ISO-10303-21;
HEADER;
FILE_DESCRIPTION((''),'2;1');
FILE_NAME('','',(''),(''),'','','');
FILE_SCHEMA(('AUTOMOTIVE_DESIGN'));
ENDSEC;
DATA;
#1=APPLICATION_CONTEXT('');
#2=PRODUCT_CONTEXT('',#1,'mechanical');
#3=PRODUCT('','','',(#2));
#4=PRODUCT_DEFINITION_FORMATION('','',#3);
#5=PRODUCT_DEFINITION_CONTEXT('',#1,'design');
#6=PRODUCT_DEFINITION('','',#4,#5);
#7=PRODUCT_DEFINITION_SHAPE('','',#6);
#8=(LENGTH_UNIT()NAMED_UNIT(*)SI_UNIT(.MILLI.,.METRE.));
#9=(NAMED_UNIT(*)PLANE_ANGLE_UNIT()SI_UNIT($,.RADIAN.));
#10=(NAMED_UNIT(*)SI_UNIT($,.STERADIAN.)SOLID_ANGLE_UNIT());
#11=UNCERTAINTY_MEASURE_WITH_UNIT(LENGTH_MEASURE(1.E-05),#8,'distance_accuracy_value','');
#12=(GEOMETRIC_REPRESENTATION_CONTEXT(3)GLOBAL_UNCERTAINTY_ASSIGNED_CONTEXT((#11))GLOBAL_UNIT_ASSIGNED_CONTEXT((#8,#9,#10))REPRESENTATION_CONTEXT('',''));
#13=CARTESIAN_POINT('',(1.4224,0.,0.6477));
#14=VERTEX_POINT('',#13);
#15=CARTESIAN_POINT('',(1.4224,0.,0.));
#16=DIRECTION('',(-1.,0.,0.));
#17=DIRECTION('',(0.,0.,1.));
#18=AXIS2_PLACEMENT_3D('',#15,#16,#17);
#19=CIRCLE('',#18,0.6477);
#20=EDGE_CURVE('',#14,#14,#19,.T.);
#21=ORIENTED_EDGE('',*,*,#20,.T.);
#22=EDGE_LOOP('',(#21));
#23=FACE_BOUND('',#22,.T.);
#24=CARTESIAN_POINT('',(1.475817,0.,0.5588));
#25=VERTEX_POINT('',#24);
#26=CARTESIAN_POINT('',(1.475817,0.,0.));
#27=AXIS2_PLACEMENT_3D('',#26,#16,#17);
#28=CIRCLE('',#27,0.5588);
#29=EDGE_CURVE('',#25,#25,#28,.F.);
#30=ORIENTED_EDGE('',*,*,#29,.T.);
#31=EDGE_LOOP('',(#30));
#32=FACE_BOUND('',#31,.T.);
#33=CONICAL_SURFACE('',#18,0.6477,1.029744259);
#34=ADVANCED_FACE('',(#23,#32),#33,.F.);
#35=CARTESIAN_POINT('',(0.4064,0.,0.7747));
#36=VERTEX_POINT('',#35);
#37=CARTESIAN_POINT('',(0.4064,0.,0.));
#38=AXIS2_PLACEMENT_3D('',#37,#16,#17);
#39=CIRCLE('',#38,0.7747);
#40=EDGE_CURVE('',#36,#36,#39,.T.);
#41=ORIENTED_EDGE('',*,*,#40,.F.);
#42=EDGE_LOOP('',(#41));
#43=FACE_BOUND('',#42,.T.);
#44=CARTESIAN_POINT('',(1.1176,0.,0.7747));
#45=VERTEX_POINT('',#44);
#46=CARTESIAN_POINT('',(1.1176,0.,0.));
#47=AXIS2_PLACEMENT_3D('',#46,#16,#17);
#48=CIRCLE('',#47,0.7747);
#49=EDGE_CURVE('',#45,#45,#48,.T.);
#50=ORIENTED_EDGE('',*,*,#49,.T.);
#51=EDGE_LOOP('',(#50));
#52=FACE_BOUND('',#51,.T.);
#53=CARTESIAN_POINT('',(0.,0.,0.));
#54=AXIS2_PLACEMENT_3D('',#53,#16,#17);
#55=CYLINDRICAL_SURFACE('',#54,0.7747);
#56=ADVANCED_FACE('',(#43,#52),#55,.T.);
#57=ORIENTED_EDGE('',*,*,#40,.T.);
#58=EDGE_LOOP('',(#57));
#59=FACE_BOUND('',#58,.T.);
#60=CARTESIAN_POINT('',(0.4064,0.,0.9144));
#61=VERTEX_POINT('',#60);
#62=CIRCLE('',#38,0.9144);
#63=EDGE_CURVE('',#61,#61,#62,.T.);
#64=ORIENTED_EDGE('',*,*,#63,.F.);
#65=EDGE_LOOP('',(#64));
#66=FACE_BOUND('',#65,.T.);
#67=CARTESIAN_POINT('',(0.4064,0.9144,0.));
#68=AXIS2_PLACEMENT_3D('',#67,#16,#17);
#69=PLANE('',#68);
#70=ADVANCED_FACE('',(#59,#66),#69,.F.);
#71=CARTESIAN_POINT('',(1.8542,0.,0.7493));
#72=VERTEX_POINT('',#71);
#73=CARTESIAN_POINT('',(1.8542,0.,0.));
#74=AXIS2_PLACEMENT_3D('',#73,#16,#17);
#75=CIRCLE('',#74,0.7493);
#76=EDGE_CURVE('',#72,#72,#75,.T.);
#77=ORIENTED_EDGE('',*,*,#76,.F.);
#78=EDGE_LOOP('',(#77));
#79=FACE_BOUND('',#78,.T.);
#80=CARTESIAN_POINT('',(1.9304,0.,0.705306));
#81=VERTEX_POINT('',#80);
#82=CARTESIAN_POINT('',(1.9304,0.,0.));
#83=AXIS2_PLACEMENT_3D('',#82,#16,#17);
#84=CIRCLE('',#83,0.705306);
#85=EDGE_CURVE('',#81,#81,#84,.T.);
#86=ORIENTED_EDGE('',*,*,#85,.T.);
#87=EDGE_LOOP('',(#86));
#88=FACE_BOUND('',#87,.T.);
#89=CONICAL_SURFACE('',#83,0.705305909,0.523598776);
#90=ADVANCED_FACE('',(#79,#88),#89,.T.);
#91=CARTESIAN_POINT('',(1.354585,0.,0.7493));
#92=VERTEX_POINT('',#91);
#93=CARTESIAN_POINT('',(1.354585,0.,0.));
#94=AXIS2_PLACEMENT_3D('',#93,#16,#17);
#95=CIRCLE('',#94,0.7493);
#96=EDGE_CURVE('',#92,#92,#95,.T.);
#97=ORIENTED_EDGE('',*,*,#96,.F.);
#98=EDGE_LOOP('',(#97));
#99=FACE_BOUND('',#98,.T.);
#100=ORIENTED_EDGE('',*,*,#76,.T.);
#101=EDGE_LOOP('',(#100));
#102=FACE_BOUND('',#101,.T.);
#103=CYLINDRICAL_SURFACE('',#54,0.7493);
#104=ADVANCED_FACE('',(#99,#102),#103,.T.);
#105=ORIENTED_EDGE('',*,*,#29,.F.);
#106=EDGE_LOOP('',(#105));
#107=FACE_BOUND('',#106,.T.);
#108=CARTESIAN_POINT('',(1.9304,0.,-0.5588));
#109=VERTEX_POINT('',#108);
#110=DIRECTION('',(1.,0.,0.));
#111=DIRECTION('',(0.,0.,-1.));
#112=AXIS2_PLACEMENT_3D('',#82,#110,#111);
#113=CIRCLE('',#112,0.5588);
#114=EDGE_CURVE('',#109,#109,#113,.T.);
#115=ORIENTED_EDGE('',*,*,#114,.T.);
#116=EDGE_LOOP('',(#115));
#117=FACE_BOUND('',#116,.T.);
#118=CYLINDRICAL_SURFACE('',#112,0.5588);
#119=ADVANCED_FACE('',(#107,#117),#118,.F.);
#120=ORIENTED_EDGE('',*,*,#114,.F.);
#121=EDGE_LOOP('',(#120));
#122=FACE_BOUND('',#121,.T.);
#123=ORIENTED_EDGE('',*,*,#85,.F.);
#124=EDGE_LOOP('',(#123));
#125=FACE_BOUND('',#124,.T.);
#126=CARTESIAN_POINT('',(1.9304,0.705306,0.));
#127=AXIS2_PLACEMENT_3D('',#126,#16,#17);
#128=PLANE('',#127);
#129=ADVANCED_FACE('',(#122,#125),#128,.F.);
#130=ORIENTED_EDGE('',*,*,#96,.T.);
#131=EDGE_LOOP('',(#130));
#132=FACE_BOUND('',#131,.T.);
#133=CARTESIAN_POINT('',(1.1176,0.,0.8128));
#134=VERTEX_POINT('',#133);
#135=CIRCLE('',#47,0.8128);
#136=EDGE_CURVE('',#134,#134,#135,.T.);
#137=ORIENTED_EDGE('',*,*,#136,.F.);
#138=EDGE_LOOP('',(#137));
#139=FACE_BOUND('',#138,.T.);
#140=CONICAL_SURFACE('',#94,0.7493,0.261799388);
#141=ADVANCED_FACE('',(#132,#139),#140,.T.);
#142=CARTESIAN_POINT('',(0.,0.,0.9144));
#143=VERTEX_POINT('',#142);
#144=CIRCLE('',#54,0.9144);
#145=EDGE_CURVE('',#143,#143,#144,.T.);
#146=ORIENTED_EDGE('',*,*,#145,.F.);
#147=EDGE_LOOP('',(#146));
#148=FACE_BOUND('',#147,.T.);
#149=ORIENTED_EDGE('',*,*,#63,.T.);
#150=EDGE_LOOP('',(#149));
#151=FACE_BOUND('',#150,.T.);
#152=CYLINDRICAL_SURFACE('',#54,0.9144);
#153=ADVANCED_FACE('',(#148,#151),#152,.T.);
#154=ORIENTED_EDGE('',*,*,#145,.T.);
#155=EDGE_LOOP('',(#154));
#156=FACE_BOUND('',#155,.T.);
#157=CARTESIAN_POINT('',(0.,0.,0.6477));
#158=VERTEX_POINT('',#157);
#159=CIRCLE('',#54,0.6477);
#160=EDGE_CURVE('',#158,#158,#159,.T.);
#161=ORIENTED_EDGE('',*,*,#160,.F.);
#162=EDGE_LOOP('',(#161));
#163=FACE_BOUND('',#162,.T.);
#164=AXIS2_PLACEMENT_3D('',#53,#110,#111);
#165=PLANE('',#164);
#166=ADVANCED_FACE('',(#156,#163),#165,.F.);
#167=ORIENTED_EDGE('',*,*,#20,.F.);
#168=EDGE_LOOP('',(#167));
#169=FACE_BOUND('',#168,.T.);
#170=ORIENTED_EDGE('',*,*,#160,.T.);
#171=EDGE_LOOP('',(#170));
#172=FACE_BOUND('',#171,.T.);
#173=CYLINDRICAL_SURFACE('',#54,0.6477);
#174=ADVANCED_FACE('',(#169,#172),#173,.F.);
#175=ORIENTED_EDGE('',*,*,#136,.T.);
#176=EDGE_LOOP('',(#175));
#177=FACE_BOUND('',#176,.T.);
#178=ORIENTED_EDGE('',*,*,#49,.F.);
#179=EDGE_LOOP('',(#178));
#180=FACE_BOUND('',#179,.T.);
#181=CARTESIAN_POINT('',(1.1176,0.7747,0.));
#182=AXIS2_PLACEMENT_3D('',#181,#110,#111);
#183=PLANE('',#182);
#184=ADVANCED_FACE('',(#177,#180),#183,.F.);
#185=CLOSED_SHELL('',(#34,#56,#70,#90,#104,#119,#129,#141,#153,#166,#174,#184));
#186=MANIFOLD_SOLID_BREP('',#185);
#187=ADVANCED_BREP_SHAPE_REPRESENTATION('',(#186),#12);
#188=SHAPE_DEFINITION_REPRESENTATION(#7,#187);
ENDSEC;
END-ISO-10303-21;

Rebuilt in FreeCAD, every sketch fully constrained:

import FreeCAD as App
import Part
import Sketcher
from FreeCAD import Vector
Q = App.Units.Quantity

doc = App.newDocument("Part")
body = doc.addObject("PartDesign::Body", "Body")

# Sketch on XY plane
sketch1 = body.newObject("Sketcher::SketchObject", "Sketch")
sketch1.AttachmentSupport = (doc.getObject("XY_Plane"), [""])
sketch1.MapMode = "FlatFace"
sketch1.addGeometry([
    Part.LineSegment(Vector(0, 0.914, 0), Vector(0, 0, 0)),  # 0
    Part.LineSegment(Vector(0, 0, 0), Vector(1.93, 0, 0)),  # 1
    Part.LineSegment(Vector(1.93, 0, 0), Vector(1.93, 0.705, 0)),  # 2
    Part.LineSegment(Vector(1.93, 0.705, 0), Vector(1.854, 0.749, 0)),  # 3
    Part.LineSegment(Vector(1.854, 0.749, 0), Vector(1.355, 0.749, 0)),  # 4
    Part.LineSegment(Vector(1.355, 0.749, 0), Vector(1.118, 0.813, 0)),  # 5
    Part.LineSegment(Vector(1.118, 0.813, 0), Vector(1.118, 0.775, 0)),  # 6
    Part.LineSegment(Vector(1.118, 0.775, 0), Vector(0.406, 0.775, 0)),  # 7
    Part.LineSegment(Vector(0.406, 0.775, 0), Vector(0.406, 0.914, 0)),  # 8
    Part.LineSegment(Vector(0.406, 0.914, 0), Vector(0, 0.914, 0)),  # 9
], False)
sketch1.addConstraint([
    Sketcher.Constraint("Coincident", 0, 2, 1, 1),
    Sketcher.Constraint("Coincident", 1, 2, 2, 1),
    Sketcher.Constraint("Coincident", 2, 2, 3, 1),
    Sketcher.Constraint("Coincident", 3, 2, 4, 1),
    Sketcher.Constraint("Coincident", 4, 2, 5, 1),
    Sketcher.Constraint("Coincident", 5, 2, 6, 1),
    Sketcher.Constraint("Coincident", 6, 2, 7, 1),
    Sketcher.Constraint("Coincident", 7, 2, 8, 1),
    Sketcher.Constraint("Coincident", 8, 2, 9, 1),
    Sketcher.Constraint("Coincident", 9, 2, 0, 1),
    Sketcher.Constraint("Vertical", 0),
    Sketcher.Constraint("Horizontal", 1),
    Sketcher.Constraint("Vertical", 2),
    Sketcher.Constraint("Horizontal", 4),
    Sketcher.Constraint("Vertical", 6),
    Sketcher.Constraint("Horizontal", 7),
    Sketcher.Constraint("Vertical", 8),
    Sketcher.Constraint("Horizontal", 9),
    Sketcher.Constraint("Coincident", 0, 2, -1, 1),
    Sketcher.Constraint("Angle", 3, Q("150 deg")),
    Sketcher.Constraint("Angle", 5, Q("165 deg")),
    Sketcher.Constraint("DistanceX", 1, 1, 1, 2, Q("0.076 in")),
    Sketcher.Constraint("DistanceX", 7, 2, 7, 1, Q("0.028 in")),
    Sketcher.Constraint("DistanceX", 9, 2, 9, 1, Q("0.016 in")),
    Sketcher.Constraint("DistanceY", 0, 2, 0, 1, Q("0.036 in")),
    Sketcher.Constraint("DistanceY", 6, 2, 6, 1, Q("0.0015 in")),
    Sketcher.Constraint("DistanceY", 8, 1, 8, 2, Q("0.0055 in")),
    Sketcher.Constraint("DistanceX", -1, 1, 3, 2, Q("0.073 in")),
    Sketcher.Constraint("DistanceY", 4, 2, 6, 2, Q("0.001 in")),
])
revolution = body.newObject("PartDesign::Revolution", "Revolution")
revolution.Profile = sketch1
revolution.ReferenceAxis = (sketch1, ["H_Axis"])
revolution.Angle = 360

# Sketch on YZ plane
sketch2 = body.newObject("Sketcher::SketchObject", "Sketch001")
sketch2.AttachmentSupport = (doc.getObject("YZ_Plane"), [""])
sketch2.MapMode = "FlatFace"
sketch2.addGeometry(Part.Circle(Vector(0, 0, 0), Vector(0, 0, 1), 0.6), False)
sketch2.addConstraint([
    Sketcher.Constraint("Coincident", 0, 3, -1, 1),
    Sketcher.Constraint("Diameter", 0, Q("0.051 in")),
])
doc.recompute()
hole = body.newObject("PartDesign::Hole", "Hole")
hole.Profile = sketch2
hole.ThreadType = "None"
hole.Diameter = Q("0.051 in")
hole.DepthType = "Dimension"
hole.Depth = Q("0.056 in")
hole.DrillPoint = "Angled"
hole.DrillPointAngle = 118
hole.Reversed = True

# Sketch on YZ plane
sketch3 = body.newObject("Sketcher::SketchObject", "Sketch002")
sketch3.AttachmentSupport = (doc.getObject("YZ_Plane"), [""])
sketch3.MapMode = "FlatFace"
sketch3.AttachmentOffset = App.Placement(Vector(0, 0, 0.076 * 25.4), App.Rotation())
sketch3.addGeometry(Part.Circle(Vector(0, 0, 0), Vector(0, 0, 1), 0.6), False)
sketch3.addConstraint([
    Sketcher.Constraint("Coincident", 0, 3, -1, 1),
    Sketcher.Constraint("Diameter", 0, Q("0.044 in")),
])
doc.recompute()
hole2 = body.newObject("PartDesign::Hole", "Hole001")
hole2.Profile = sketch3
hole2.ThreadType = "None"
hole2.Diameter = Q("0.044 in")
hole2.DepthType = "Dimension"
hole2.Depth = Q("0.076 in")
hole2.DrillPoint = "Angled"
hole2.DrillPointAngle = 118

doc.recompute()
